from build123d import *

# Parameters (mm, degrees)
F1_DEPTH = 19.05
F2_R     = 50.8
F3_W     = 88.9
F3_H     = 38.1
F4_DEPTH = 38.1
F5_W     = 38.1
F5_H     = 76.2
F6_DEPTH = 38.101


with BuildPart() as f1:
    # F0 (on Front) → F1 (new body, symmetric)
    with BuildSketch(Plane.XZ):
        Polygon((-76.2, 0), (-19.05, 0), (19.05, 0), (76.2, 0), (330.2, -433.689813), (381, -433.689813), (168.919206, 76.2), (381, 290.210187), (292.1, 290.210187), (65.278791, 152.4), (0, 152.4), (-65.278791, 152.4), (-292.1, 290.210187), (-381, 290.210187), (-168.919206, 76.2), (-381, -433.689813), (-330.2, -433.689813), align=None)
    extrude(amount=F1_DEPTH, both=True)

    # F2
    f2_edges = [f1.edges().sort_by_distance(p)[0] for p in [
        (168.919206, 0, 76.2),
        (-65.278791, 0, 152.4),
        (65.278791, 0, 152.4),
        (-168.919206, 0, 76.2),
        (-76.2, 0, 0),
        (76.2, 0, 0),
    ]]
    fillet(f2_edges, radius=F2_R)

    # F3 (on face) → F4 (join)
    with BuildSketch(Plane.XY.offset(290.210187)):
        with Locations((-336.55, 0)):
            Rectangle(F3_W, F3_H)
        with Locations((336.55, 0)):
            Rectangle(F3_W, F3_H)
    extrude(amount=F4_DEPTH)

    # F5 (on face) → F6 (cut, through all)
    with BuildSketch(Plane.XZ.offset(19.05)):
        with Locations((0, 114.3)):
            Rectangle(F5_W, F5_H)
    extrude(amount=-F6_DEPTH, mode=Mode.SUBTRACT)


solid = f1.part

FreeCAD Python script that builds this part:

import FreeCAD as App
import Part
import Sketcher
Q = App.Units.Quantity


def edges_at(feature, points):
    """Names of the edges that pass closest to the given points."""
    edges = feature.Shape.Edges
    near = lambda p: min(range(len(edges)), key=lambda i: edges[i].distToShape(Part.Vertex(*p))[0])
    return sorted({f"Edge{near(p) + 1}" for p in points})


def add_polygon(sketch, points):
    """Adds a closed chain of lines whose ends are joined by coincident constraints."""
    first, n = sketch.GeometryCount, len(points)
    for a, b in zip(points, points[1:] + points[:1]):
        sketch.addGeometry(Part.LineSegment(App.Vector(*a, 0), App.Vector(*b, 0)), False)
    for i in range(n):
        sketch.addConstraint(Sketcher.Constraint("Coincident", first + i, 2, first + (i + 1) % n, 1))

doc = App.newDocument("Part")
body = doc.addObject("PartDesign::Body", "Body")

# Sketch on XZ plane
sketch1 = body.newObject("Sketcher::SketchObject", "Sketch")
sketch1.AttachmentSupport = (doc.getObject("XZ_Plane"), [""])
sketch1.MapMode = "FlatFace"
add_polygon(sketch1, [(-76, 0), (76, 0), (330, -434), (381, -434), (169, 76), (381, 290), (292, 290), (65, 152), (-65, 152), (-292, 290), (-381, 290), (-169, 76), (-381, -434), (-330, -434)])  # lines 0-13
sketch1.addConstraint([
    Sketcher.Constraint("Horizontal", 0),
    Sketcher.Constraint("Horizontal", 2),
    Sketcher.Constraint("Horizontal", 5),
    Sketcher.Constraint("Horizontal", 7),
    Sketcher.Constraint("Horizontal", 9),
    Sketcher.Constraint("Horizontal", 12),
    Sketcher.Constraint("Symmetric", 0, 2, 13, 2, -1, 1),
    Sketcher.Constraint("Symmetric", 5, 2, 8, 2, -2),
    Sketcher.Constraint("Symmetric", 3, 2, 10, 2, -2),
    Sketcher.Constraint("Symmetric", 2, 2, 11, 2, -2),
    Sketcher.Constraint("Vertical", 2, 2, 4, 2),
    Sketcher.Constraint("Vertical", 9, 2, 11, 2),
    Sketcher.Constraint("Equal", 2, 12),
    Sketcher.Constraint("Equal", 6, 8),
    Sketcher.Constraint("DistanceX", 0, 1, 0, 2, Q("6 in")),
    Sketcher.Constraint("DistanceX", 2, 1, 2, 2, Q("2 in")),
    Sketcher.Constraint("DistanceX", 5, 2, 5, 1, Q("3.5 in")),
    Sketcher.Constraint("DistanceX", -1, 1, 1, 2, Q("13 in")),
    Sketcher.Constraint("DistanceY", -1, 1, 3, 2, Q("3 in")),
    Sketcher.Constraint("DistanceY", -1, 1, 6, 2, Q("6 in")),
    Sketcher.Constraint("DistanceY", 2, 2, 4, 2, Q("28.5 in")),
    Sketcher.Constraint("DistanceX", 7, 2, 7, 1, Q("130.557582 mm")),
    Sketcher.Constraint("Distance", 4, Q("301.294911 mm")),
    Sketcher.Constraint("Distance", 1, Q("502.596114 mm")),
])
pad1 = body.newObject("PartDesign::Pad", "Pad")
pad1.Profile = sketch1
pad1.Length = Q("1.5 in")
pad1.Midplane = True
doc.recompute()

fillet = body.newObject("PartDesign::Fillet", "Fillet")
fillet.Base = (pad1, edges_at(pad1, [
    (168.919, 0, 76.2),
    (-65.279, 0, 152.4),
    (65.279, 0, 152.4),
    (-168.919, 0, 76.2),
    (-76.2, 0, 0),
    (76.2, 0, 0),
]))
fillet.Radius = Q("2 in")

# Sketch on XY plane
sketch2 = body.newObject("Sketcher::SketchObject", "Sketch001")
sketch2.AttachmentSupport = (doc.getObject("XY_Plane"), [""])
sketch2.MapMode = "FlatFace"
sketch2.AttachmentOffset = App.Placement(App.Vector(0, 0, 290.210187), App.Rotation())
add_polygon(sketch2, [(-381, 19), (-381, -19), (-292, -19), (-292, 19)])  # lines 0-3
add_polygon(sketch2, [(292, 19), (292, -19), (381, -19), (381, 19)])  # lines 4-7
sketch2.addConstraint([
    Sketcher.Constraint("Vertical", 0),
    Sketcher.Constraint("Horizontal", 1),
    Sketcher.Constraint("Vertical", 2),
    Sketcher.Constraint("Horizontal", 3),
    Sketcher.Constraint("Vertical", 4),
    Sketcher.Constraint("Horizontal", 5),
    Sketcher.Constraint("Vertical", 6),
    Sketcher.Constraint("Horizontal", 7),
    Sketcher.Constraint("Symmetric", 2, 2, 4, 2, -1, 1),
    Sketcher.Constraint("Symmetric", 0, 2, 6, 2, -1, 1),
    Sketcher.Constraint("Horizontal", 1, 2, 4, 2),
    Sketcher.Constraint("DistanceX", 1, 1, 1, 2, Q("3.5 in")),
    Sketcher.Constraint("DistanceY", 0, 2, 0, 1, Q("1.5 in")),
    Sketcher.Constraint("DistanceX", 0, 2, -1, 1, Q("15 in")),
])
pad2 = body.newObject("PartDesign::Pad", "Pad001")
pad2.Profile = sketch2
pad2.Length = Q("1.5 in")

# Sketch on XZ plane
sketch3 = body.newObject("Sketcher::SketchObject", "Sketch002")
sketch3.AttachmentSupport = (doc.getObject("XZ_Plane"), [""])
sketch3.MapMode = "FlatFace"
sketch3.AttachmentOffset = App.Placement(App.Vector(0, 0, 0.75 * 25.4), App.Rotation())
add_polygon(sketch3, [(-19, 152), (-19, 76), (19, 76), (19, 152)])  # lines 0-3
sketch3.addConstraint([
    Sketcher.Constraint("Vertical", 0),
    Sketcher.Constraint("Horizontal", 1),
    Sketcher.Constraint("Vertical", 2),
    Sketcher.Constraint("Horizontal", 3),
    Sketcher.Constraint("DistanceY", 0, 2, 0, 1, Q("3 in")),
    Sketcher.Constraint("DistanceX", 1, 1, 1, 2, Q("1.5 in")),
    Sketcher.Constraint("DistanceY", -1, 1, 0, 2, Q("3 in")),
    Sketcher.Constraint("DistanceX", 0, 2, -1, 1, Q("0.75 in")),
])
pocket1 = body.newObject("PartDesign::Pocket", "Pocket")
pocket1.Profile = sketch3
pocket1.Type = "ThroughAll"

doc.recompute()
